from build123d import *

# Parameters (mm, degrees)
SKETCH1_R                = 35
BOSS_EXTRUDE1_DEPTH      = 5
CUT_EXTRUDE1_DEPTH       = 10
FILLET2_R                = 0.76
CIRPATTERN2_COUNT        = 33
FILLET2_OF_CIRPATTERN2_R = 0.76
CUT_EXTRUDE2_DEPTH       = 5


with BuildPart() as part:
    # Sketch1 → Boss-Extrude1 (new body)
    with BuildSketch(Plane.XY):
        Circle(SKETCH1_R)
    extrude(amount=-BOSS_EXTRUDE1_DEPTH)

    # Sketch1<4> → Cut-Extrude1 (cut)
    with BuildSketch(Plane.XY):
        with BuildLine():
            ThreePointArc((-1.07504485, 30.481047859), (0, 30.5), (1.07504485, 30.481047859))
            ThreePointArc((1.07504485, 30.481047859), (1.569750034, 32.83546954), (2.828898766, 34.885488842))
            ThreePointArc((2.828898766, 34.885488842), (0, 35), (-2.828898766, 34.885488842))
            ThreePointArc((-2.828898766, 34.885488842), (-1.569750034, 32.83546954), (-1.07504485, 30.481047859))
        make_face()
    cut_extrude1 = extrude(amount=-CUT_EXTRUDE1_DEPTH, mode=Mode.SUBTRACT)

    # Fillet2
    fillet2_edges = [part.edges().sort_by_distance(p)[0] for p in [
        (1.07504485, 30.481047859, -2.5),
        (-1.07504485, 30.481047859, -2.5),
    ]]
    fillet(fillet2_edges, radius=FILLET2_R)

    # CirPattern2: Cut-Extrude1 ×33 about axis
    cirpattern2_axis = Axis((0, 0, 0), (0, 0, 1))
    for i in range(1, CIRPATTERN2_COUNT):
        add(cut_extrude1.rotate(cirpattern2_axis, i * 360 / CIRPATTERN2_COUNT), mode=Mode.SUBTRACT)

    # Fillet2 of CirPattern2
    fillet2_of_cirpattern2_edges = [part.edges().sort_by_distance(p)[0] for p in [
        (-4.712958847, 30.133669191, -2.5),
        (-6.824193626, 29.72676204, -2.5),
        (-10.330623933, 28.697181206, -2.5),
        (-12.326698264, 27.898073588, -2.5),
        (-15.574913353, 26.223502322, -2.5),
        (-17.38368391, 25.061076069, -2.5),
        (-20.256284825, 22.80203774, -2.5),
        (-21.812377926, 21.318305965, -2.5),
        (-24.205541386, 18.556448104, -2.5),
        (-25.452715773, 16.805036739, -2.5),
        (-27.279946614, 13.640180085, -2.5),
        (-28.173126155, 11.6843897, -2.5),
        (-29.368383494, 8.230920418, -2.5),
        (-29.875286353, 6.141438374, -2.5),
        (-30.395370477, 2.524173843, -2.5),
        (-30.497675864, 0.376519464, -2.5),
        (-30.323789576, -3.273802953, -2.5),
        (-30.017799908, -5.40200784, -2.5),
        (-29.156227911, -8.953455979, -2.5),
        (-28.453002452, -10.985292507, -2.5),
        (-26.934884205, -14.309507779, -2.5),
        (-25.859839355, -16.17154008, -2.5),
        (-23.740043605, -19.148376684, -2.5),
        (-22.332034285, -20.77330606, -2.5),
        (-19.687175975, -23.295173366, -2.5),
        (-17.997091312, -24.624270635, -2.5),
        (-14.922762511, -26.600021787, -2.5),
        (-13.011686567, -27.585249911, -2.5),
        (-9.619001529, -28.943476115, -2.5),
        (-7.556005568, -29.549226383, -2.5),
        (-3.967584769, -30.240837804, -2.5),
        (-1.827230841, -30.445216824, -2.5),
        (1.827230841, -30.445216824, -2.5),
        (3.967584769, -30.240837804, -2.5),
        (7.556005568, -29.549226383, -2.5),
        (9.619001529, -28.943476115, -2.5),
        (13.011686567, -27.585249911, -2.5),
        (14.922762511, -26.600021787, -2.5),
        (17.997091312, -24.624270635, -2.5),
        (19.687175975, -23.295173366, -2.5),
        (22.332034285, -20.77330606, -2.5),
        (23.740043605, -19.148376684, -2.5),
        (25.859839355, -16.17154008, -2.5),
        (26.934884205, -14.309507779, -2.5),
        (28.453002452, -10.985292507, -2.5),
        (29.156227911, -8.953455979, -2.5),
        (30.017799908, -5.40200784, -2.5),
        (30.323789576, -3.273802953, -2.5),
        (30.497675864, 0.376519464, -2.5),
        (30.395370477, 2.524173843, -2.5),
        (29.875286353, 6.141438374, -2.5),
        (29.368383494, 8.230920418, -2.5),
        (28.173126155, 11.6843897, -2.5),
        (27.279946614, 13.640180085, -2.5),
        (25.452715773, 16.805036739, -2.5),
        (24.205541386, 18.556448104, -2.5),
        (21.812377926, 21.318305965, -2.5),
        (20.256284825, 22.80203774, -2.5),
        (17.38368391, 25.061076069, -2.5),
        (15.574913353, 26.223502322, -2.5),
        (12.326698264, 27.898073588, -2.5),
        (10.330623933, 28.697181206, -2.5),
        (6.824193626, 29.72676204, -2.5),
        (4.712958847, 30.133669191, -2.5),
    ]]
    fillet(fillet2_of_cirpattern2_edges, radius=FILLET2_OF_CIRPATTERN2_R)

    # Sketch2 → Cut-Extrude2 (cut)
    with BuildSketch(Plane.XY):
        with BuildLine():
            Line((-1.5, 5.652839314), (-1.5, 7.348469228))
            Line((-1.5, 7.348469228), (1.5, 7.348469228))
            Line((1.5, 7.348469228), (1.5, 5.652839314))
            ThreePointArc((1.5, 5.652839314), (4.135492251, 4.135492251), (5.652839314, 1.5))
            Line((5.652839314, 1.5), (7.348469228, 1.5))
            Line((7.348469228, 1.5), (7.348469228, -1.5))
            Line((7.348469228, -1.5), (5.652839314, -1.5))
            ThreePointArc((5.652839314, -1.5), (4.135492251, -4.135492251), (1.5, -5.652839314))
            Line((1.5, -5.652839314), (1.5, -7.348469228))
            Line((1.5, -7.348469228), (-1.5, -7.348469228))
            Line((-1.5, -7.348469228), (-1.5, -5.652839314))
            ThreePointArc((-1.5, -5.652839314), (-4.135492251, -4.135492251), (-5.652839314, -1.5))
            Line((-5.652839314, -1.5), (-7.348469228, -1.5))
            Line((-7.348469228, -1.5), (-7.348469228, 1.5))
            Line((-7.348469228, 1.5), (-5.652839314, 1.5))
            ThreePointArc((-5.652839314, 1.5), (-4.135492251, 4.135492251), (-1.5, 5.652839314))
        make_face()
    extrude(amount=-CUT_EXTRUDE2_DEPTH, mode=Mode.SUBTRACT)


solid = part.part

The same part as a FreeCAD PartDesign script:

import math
import FreeCAD as App
import Part
import Sketcher
from FreeCAD import Vector


def edges_at(feature, points):
    """Names of the edges that pass closest to the given points."""
    edges = feature.Shape.Edges
    near = lambda p: min(range(len(edges)), key=lambda i: edges[i].distToShape(Part.Vertex(*p))[0])
    return sorted({f"Edge{near(p) + 1}" for p in points})

doc = App.newDocument("Part")
body = doc.addObject("PartDesign::Body", "Body")

sketch1 = doc.addObject("Sketcher::SketchObject", "Sketch")
body.addObject(sketch1)
sketch1.AttachmentSupport = (doc.XY_Plane, [""])
sketch1.MapMode = "FlatFace"
sketch1.addGeometry(Part.Circle(Vector(0, 0, 0), Vector(0, 0, 1), 35), False)
sketch1.addConstraint([
    Sketcher.Constraint("Coincident", 0, 3, -1, 1),
    Sketcher.Constraint("Diameter", 0, 70.0),
])
pad1 = doc.addObject("PartDesign::Pad", "Pad")
body.addObject(pad1)
pad1.Profile = sketch1
pad1.Length = 5
pad1.Reversed = True

sketch2 = doc.addObject("Sketcher::SketchObject", "Sketch001")
body.addObject(sketch2)
sketch2.AttachmentSupport = (doc.XY_Plane, [""])
sketch2.MapMode = "FlatFace"
sketch2.addGeometry([
    Part.ArcOfCircle(Part.Circle(Vector(0, 0, 0), Vector(0, 0, 1), 30.5), math.radians(87.98), math.radians(92.02)),
    Part.ArcOfCircle(Part.Circle(Vector(8.1, 30.2, 0), Vector(0, 0, 1), 7), math.radians(139), math.radians(178)),
    Part.ArcOfCircle(Part.Circle(Vector(0, 0, 0), Vector(0, 0, 1), 35), math.radians(85.36), math.radians(94.64)),
    Part.ArcOfCircle(Part.Circle(Vector(-8.1, 30.2, 0), Vector(0, 0, 1), 7), math.radians(2), math.radians(41)),
], False)
sketch2.addConstraint([
    Sketcher.Constraint("Coincident", 0, 1, 1, 2),
    Sketcher.Constraint("Coincident", 1, 1, 2, 1),
    Sketcher.Constraint("Coincident", 2, 2, 3, 2),
    Sketcher.Constraint("Coincident", 3, 1, 0, 2),
    Sketcher.Constraint("Coincident", 0, 3, -1, 1),
    Sketcher.Constraint("Coincident", 2, 3, -1, 1),
    Sketcher.Constraint("Equal", 1, 3),
    Sketcher.Constraint("Symmetric", 1, 3, 3, 3, -2),
    Sketcher.Constraint("Radius", 2, 35.0),
    Sketcher.Constraint("Radius", 0, 30.5),
    Sketcher.Constraint("Radius", 1, 7.034377),
    Sketcher.Constraint("DistanceX", -1, 1, 1, 1, 2.828899),
    Sketcher.Constraint("DistanceX", 3, 3, 1, 3, 16.210102),
])
pocket1 = doc.addObject("PartDesign::Pocket", "Pocket")
body.addObject(pocket1)
pocket1.Profile = sketch2
pocket1.Length = 10
doc.recompute()

fillet = doc.addObject("PartDesign::Fillet", "Fillet")
body.addObject(fillet)
fillet.Base = (pocket1, edges_at(pocket1, [(1.075, 30.481, -2.5), (-1.075, 30.481, -2.5)]))
fillet.Radius = 0.76
doc.recompute()

polarpattern = doc.addObject("PartDesign::PolarPattern", "PolarPattern")
body.addObject(polarpattern)
polarpattern.Originals = [pocket1]
polarpattern.Axis = (doc.Z_Axis, [""])
polarpattern.Angle = 360
polarpattern.Occurrences = 33
body.Tip = polarpattern
doc.recompute()

fillet2 = doc.addObject("PartDesign::Fillet", "Fillet001")
body.addObject(fillet2)
fillet2.Base = (polarpattern, edges_at(polarpattern, [
    (-4.713, 30.134, -2.5),
    (-6.824, 29.727, -2.5),
    (-10.331, 28.697, -2.5),
    (-12.327, 27.898, -2.5),
    (-15.575, 26.224, -2.5),
    (-17.384, 25.061, -2.5),
    (-20.256, 22.802, -2.5),
    (-21.812, 21.318, -2.5),
    (-24.206, 18.556, -2.5),
    (-25.453, 16.805, -2.5),
    (-27.28, 13.64, -2.5),
    (-28.173, 11.684, -2.5),
    (-29.368, 8.231, -2.5),
    (-29.875, 6.141, -2.5),
    (-30.395, 2.524, -2.5),
    (-30.498, 0.377, -2.5),
    (-30.324, -3.274, -2.5),
    (-30.018, -5.402, -2.5),
    (-29.156, -8.953, -2.5),
    (-28.453, -10.985, -2.5),
    (-26.935, -14.31, -2.5),
    (-25.86, -16.172, -2.5),
    (-23.74, -19.148, -2.5),
    (-22.332, -20.773, -2.5),
    (-19.687, -23.295, -2.5),
    (-17.997, -24.624, -2.5),
    (-14.923, -26.6, -2.5),
    (-13.012, -27.585, -2.5),
    (-9.619, -28.943, -2.5),
    (-7.556, -29.549, -2.5),
    (-3.968, -30.241, -2.5),
    (-1.827, -30.445, -2.5),
    (1.827, -30.445, -2.5),
    (3.968, -30.241, -2.5),
    (7.556, -29.549, -2.5),
    (9.619, -28.943, -2.5),
    (13.012, -27.585, -2.5),
    (14.923, -26.6, -2.5),
    (17.997, -24.624, -2.5),
    (19.687, -23.295, -2.5),
    (22.332, -20.773, -2.5),
    (23.74, -19.148, -2.5),
    (25.86, -16.172, -2.5),
    (26.935, -14.31, -2.5),
    (28.453, -10.985, -2.5),
    (29.156, -8.953, -2.5),
    (30.018, -5.402, -2.5),
    (30.324, -3.274, -2.5),
    (30.498, 0.377, -2.5),
    (30.395, 2.524, -2.5),
    (29.875, 6.141, -2.5),
    (29.368, 8.231, -2.5),
    (28.173, 11.684, -2.5),
    (27.28, 13.64, -2.5),
    (25.453, 16.805, -2.5),
    (24.206, 18.556, -2.5),
    (21.812, 21.318, -2.5),
    (20.256, 22.802, -2.5),
    (17.384, 25.061, -2.5),
    (15.575, 26.224, -2.5),
    (12.327, 27.898, -2.5),
    (10.331, 28.697, -2.5),
    (6.824, 29.727, -2.5),
    (4.713, 30.134, -2.5),
]))
fillet2.Radius = 0.76

sketch3 = doc.addObject("Sketcher::SketchObject", "Sketch002")
body.addObject(sketch3)
sketch3.AttachmentSupport = (doc.XY_Plane, [""])
sketch3.MapMode = "FlatFace"
sketch3.addGeometry([
    Part.LineSegment(Vector(-1.5, 7.3, 0), Vector(-1.5, 5.7, 0)),
    Part.ArcOfCircle(Part.Circle(Vector(0, 0, 0), Vector(0, 0, 1), 5.8), math.radians(105), math.radians(165)),
    Part.LineSegment(Vector(-5.7, 1.5, 0), Vector(-7.3, 1.5, 0)),
    Part.LineSegment(Vector(-7.3, 1.5, 0), Vector(-7.3, -1.5, 0)),
    Part.LineSegment(Vector(-7.3, -1.5, 0), Vector(-5.7, -1.5, 0)),
    Part.ArcOfCircle(Part.Circle(Vector(0, 0, 0), Vector(0, 0, 1), 5.8), math.radians(-165), math.radians(-105)),
    Part.LineSegment(Vector(-1.5, -5.7, 0), Vector(-1.5, -7.3, 0)),
    Part.LineSegment(Vector(-1.5, -7.3, 0), Vector(1.5, -7.3, 0)),
    Part.LineSegment(Vector(1.5, -7.3, 0), Vector(1.5, -5.7, 0)),
    Part.ArcOfCircle(Part.Circle(Vector(0, 0, 0), Vector(0, 0, 1), 5.8), math.radians(-75), math.radians(-15)),
    Part.LineSegment(Vector(5.7, -1.5, 0), Vector(7.3, -1.5, 0)),
    Part.LineSegment(Vector(7.3, -1.5, 0), Vector(7.3, 1.5, 0)),
    Part.LineSegment(Vector(7.3, 1.5, 0), Vector(5.7, 1.5, 0)),
    Part.ArcOfCircle(Part.Circle(Vector(0, 0, 0), Vector(0, 0, 1), 5.8), math.radians(15), math.radians(75)),
    Part.LineSegment(Vector(1.5, 5.7, 0), Vector(1.5, 7.3, 0)),
    Part.LineSegment(Vector(1.5, 7.3, 0), Vector(-1.5, 7.3, 0)),
], False)
sketch3.addConstraint([
    Sketcher.Constraint("Coincident", 0, 2, 1, 1),
    Sketcher.Constraint("Coincident", 1, 2, 2, 1),
    Sketcher.Constraint("Coincident", 2, 2, 3, 1),
    Sketcher.Constraint("Coincident", 3, 2, 4, 1),
    Sketcher.Constraint("Coincident", 4, 2, 5, 1),
    Sketcher.Constraint("Coincident", 5, 2, 6, 1),
    Sketcher.Constraint("Coincident", 6, 2, 7, 1),
    Sketcher.Constraint("Coincident", 7, 2, 8, 1),
    Sketcher.Constraint("Coincident", 8, 2, 9, 1),
    Sketcher.Constraint("Coincident", 9, 2, 10, 1),
    Sketcher.Constraint("Coincident", 10, 2, 11, 1),
    Sketcher.Constraint("Coincident", 11, 2, 12, 1),
    Sketcher.Constraint("Coincident", 12, 2, 13, 1),
    Sketcher.Constraint("Coincident", 13, 2, 14, 1),
    Sketcher.Constraint("Coincident", 14, 2, 15, 1),
    Sketcher.Constraint("Coincident", 15, 2, 0, 1),
    Sketcher.Constraint("Vertical", 0),
    Sketcher.Constraint("Horizontal", 2),
    Sketcher.Constraint("Vertical", 3),
    Sketcher.Constraint("Horizontal", 4),
    Sketcher.Constraint("Vertical", 6),
    Sketcher.Constraint("Horizontal", 7),
    Sketcher.Constraint("Vertical", 8),
    Sketcher.Constraint("Horizontal", 10),
    Sketcher.Constraint("Vertical", 11),
    Sketcher.Constraint("Horizontal", 12),
    Sketcher.Constraint("Vertical", 14),
    Sketcher.Constraint("Horizontal", 15),
    Sketcher.Constraint("Coincident", 1, 3, -1, 1),
    Sketcher.Constraint("Coincident", 5, 3, -1, 1),
    Sketcher.Constraint("Coincident", 9, 3, -1, 1),
    Sketcher.Constraint("Coincident", 13, 3, -1, 1),
    Sketcher.Constraint("Equal", 1, 5),
    Sketcher.Constraint("Equal", 5, 9),
    Sketcher.Constraint("Equal", 9, 13),
    Sketcher.Constraint("Symmetric", 2, 2, 10, 2, -1, 1),
    Sketcher.Constraint("Symmetric", 6, 2, 14, 2, -1, 1),
    Sketcher.Constraint("Horizontal", 5, 2, 8, 2),
    Sketcher.Constraint("Horizontal", 4, 2, 9, 2),
    Sketcher.Constraint("Horizontal", 2, 2, 11, 2),
    Sketcher.Constraint("Horizontal", 0, 2, 13, 2),
    Sketcher.Constraint("Equal", 12, 0),
    Sketcher.Constraint("Equal", 15, 3),
    Sketcher.Constraint("DistanceX", 7, 1, 7, 2, 3.0),
    Sketcher.Constraint("Radius", 1, 5.848469),
    Sketcher.Constraint("DistanceX", 2, 2, 2, 1, 1.69563),
])
pocket2 = doc.addObject("PartDesign::Pocket", "Pocket001")
body.addObject(pocket2)
pocket2.Profile = sketch3
pocket2.Length = 5

doc.recompute()
